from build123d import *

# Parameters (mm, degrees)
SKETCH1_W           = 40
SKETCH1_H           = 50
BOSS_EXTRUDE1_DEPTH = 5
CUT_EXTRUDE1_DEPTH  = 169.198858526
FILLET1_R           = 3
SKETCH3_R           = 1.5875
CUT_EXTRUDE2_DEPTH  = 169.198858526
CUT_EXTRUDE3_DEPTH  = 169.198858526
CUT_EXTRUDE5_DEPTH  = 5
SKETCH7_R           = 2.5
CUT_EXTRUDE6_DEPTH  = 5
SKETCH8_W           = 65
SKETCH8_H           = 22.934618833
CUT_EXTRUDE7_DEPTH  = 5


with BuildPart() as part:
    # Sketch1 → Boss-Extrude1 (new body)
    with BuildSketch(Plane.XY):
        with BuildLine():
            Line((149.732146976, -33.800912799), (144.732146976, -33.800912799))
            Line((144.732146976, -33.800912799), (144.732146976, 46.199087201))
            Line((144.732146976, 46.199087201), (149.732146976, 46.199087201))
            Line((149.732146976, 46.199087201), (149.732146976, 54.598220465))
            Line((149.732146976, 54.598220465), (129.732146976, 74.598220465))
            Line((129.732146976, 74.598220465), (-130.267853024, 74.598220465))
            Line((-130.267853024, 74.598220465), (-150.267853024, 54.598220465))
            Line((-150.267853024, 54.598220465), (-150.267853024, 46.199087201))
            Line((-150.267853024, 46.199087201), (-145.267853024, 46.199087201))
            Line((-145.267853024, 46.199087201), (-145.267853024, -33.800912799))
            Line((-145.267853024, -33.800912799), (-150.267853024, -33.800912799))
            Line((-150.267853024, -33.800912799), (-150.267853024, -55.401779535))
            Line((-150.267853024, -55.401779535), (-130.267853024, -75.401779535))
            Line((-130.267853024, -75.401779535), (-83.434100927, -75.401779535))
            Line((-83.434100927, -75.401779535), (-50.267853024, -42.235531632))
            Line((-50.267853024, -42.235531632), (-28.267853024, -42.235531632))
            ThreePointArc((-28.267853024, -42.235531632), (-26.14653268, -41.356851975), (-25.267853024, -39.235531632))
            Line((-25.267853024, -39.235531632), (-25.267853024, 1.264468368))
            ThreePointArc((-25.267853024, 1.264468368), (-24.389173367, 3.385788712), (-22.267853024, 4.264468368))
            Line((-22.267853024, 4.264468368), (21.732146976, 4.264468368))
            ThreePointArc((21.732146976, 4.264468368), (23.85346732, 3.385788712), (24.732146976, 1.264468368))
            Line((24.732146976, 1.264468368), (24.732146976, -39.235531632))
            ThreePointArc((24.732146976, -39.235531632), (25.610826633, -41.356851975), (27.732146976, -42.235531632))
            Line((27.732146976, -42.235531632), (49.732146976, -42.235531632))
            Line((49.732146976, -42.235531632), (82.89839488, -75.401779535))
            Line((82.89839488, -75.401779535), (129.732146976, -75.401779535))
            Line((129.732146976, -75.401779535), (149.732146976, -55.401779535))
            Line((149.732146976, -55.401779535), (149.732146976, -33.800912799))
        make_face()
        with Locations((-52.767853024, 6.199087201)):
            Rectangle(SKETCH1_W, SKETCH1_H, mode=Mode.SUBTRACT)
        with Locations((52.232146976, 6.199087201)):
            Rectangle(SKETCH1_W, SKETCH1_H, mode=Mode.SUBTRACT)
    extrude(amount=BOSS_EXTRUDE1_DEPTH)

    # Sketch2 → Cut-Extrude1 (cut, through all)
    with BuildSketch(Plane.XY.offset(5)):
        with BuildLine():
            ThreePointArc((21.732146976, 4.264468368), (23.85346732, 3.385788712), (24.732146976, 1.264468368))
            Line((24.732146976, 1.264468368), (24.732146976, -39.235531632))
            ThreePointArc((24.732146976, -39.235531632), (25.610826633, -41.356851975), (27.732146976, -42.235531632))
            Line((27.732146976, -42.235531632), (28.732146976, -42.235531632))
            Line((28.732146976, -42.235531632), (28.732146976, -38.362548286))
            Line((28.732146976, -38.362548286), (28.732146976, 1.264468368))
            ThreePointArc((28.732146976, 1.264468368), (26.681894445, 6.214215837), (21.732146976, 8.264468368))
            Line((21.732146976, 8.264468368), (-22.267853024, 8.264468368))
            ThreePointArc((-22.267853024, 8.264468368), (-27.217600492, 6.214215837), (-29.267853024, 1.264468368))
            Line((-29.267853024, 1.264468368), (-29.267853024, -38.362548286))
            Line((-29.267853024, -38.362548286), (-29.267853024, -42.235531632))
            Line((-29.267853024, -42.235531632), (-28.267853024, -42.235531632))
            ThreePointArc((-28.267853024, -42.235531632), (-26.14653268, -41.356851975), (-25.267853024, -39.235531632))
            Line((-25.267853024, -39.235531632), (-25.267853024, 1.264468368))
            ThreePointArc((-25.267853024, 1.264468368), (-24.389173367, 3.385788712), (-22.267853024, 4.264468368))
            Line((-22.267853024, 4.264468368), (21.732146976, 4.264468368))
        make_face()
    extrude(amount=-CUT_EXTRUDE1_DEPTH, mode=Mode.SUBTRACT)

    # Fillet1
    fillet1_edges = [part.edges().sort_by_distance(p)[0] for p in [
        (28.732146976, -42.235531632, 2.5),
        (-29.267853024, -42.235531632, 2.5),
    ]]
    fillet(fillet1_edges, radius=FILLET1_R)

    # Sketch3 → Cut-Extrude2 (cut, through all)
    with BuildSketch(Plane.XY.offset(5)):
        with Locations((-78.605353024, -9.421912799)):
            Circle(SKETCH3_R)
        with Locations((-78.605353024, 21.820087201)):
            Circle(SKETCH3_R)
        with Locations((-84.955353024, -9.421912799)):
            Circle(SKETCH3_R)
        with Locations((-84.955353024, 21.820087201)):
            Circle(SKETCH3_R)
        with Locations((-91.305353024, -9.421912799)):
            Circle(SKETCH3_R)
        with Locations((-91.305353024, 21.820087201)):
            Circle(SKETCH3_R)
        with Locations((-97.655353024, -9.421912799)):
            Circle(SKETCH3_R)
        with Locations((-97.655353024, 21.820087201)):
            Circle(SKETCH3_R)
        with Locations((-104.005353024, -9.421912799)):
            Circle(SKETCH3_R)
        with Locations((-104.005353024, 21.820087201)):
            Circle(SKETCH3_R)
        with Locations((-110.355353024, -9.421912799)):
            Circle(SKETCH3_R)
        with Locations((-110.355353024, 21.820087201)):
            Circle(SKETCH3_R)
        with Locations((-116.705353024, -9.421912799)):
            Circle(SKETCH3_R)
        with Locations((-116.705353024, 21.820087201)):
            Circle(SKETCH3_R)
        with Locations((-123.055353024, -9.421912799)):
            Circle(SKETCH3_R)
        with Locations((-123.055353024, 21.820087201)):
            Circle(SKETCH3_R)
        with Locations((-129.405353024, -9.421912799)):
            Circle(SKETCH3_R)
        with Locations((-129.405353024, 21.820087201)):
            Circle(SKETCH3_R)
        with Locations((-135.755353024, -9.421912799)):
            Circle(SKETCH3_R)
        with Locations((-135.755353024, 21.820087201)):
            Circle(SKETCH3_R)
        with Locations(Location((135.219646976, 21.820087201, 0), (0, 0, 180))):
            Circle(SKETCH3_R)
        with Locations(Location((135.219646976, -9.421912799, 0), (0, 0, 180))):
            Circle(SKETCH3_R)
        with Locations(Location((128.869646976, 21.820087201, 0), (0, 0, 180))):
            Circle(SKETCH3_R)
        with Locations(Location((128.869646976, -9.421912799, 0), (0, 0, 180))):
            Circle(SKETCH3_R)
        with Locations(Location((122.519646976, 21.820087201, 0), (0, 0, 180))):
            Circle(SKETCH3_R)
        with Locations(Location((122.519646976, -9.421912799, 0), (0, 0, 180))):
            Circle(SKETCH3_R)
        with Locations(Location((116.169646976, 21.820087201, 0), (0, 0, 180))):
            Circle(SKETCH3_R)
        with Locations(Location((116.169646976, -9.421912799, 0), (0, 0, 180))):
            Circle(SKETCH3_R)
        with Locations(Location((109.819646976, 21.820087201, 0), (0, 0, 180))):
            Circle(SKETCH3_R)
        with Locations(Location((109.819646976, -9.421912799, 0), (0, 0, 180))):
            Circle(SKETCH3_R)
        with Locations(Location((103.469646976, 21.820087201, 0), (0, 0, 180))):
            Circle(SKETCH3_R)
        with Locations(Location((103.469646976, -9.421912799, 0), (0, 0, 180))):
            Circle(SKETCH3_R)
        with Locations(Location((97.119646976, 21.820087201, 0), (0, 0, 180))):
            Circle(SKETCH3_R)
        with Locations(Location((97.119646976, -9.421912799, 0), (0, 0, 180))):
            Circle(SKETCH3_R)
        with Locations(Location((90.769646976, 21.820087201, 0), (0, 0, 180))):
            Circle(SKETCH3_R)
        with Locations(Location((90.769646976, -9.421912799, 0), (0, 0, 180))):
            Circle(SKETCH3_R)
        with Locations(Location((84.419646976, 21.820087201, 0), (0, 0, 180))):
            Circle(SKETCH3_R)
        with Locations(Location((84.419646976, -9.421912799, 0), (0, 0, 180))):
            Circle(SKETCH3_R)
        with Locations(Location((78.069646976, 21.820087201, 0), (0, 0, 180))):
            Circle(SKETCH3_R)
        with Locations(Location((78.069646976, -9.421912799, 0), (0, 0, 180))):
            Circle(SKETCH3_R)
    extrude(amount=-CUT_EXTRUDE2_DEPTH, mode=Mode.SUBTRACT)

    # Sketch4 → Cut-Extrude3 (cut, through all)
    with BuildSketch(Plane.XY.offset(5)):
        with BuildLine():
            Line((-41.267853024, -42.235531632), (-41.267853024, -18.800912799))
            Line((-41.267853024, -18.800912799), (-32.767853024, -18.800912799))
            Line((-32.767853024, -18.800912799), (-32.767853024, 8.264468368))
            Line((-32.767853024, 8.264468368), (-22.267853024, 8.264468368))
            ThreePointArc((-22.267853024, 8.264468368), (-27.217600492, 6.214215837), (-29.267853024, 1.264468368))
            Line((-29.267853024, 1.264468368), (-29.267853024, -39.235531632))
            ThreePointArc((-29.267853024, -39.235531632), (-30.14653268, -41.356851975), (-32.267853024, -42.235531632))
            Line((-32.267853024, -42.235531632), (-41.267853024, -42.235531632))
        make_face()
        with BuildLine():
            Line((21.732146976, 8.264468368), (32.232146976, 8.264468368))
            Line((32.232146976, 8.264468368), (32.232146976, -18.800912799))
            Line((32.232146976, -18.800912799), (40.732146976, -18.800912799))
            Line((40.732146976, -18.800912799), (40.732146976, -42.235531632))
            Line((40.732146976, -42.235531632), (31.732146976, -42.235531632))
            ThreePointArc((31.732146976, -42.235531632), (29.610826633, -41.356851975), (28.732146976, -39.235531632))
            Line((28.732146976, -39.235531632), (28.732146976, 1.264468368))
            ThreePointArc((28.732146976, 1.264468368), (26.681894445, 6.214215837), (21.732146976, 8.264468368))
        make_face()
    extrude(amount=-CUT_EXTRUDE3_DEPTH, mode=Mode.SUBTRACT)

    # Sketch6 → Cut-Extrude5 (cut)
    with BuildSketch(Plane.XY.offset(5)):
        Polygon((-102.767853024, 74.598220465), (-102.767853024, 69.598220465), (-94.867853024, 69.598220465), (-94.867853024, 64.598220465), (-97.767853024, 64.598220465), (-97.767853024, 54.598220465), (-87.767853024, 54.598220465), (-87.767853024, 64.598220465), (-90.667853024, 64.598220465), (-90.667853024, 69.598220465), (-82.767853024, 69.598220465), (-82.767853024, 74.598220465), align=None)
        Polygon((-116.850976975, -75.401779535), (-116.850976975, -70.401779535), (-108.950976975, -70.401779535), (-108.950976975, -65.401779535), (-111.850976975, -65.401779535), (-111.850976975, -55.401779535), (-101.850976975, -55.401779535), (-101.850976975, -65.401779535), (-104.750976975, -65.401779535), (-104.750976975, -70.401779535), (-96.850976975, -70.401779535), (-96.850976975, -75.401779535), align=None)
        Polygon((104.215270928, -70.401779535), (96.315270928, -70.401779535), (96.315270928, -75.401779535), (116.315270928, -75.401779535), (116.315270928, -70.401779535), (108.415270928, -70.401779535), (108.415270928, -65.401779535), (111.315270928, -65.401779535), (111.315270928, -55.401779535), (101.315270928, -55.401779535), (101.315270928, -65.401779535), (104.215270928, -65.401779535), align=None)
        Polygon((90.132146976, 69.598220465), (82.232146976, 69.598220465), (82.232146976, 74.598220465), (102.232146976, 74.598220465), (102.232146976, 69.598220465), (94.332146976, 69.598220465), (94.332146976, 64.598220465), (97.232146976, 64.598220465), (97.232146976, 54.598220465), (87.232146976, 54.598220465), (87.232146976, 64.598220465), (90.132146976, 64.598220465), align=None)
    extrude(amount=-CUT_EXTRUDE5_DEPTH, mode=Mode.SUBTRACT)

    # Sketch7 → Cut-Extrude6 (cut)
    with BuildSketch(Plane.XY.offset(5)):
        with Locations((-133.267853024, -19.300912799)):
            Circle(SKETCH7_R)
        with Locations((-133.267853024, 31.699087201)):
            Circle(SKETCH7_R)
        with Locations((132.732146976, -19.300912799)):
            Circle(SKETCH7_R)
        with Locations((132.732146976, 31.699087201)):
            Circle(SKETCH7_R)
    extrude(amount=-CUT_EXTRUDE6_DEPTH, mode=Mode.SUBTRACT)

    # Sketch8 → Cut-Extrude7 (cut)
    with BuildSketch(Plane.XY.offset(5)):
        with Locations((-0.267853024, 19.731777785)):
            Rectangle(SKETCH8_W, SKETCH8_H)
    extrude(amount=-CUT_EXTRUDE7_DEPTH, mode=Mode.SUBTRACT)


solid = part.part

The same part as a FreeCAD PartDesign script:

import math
import FreeCAD as App
import Part
import Sketcher
from FreeCAD import Vector
Q = App.Units.Quantity


def edges_at(feature, points):
    """Names of the edges that pass closest to the given points."""
    edges = feature.Shape.Edges
    near = lambda p: min(range(len(edges)), key=lambda i: edges[i].distToShape(Part.Vertex(*p))[0])
    return sorted({f"Edge{near(p) + 1}" for p in points})


def add_polygon(sketch, points):
    """Adds a closed chain of lines whose ends are joined by coincident constraints."""
    first, n = sketch.GeometryCount, len(points)
    for a, b in zip(points, points[1:] + points[:1]):
        sketch.addGeometry(Part.LineSegment(App.Vector(*a, 0), App.Vector(*b, 0)), False)
    for i in range(n):
        sketch.addConstraint(Sketcher.Constraint("Coincident", first + i, 2, first + (i + 1) % n, 1))

doc = App.newDocument("Part")
body = doc.addObject("PartDesign::Body", "Body")

# Sketch on XY plane
sketch1 = doc.addObject("Sketcher::SketchObject", "Sketch")
body.addObject(sketch1)
sketch1.AttachmentSupport = (doc.XY_Plane, [""])
sketch1.MapMode = "FlatFace"
sketch1.addGeometry(Part.LineSegment(Vector(149.7, -33.8, 0), Vector(144.7, -33.8, 0)), False)  # 0
sketch1.addGeometry(Part.LineSegment(Vector(144.7, -33.8, 0), Vector(144.7, 46.2, 0)), False)  # 1
sketch1.addGeometry(Part.LineSegment(Vector(144.7, 46.2, 0), Vector(149.7, 46.2, 0)), False)  # 2
sketch1.addGeometry(Part.LineSegment(Vector(149.7, 46.2, 0), Vector(149.7, 54.6, 0)), False)  # 3
sketch1.addGeometry(Part.LineSegment(Vector(149.7, 54.6, 0), Vector(129.7, 74.6, 0)), False)  # 4
sketch1.addGeometry(Part.LineSegment(Vector(129.7, 74.6, 0), Vector(-130.3, 74.6, 0)), False)  # 5
sketch1.addGeometry(Part.LineSegment(Vector(-130.3, 74.6, 0), Vector(-150.3, 54.6, 0)), False)  # 6
sketch1.addGeometry(Part.LineSegment(Vector(-150.3, 54.6, 0), Vector(-150.3, 46.2, 0)), False)  # 7
sketch1.addGeometry(Part.LineSegment(Vector(-150.3, 46.2, 0), Vector(-145.3, 46.2, 0)), False)  # 8
sketch1.addGeometry(Part.LineSegment(Vector(-145.3, 46.2, 0), Vector(-145.3, -33.8, 0)), False)  # 9
sketch1.addGeometry(Part.LineSegment(Vector(-145.3, -33.8, 0), Vector(-150.3, -33.8, 0)), False)  # 10
sketch1.addGeometry(Part.LineSegment(Vector(-150.3, -33.8, 0), Vector(-150.3, -55.4, 0)), False)  # 11
sketch1.addGeometry(Part.LineSegment(Vector(-150.3, -55.4, 0), Vector(-130.3, -75.4, 0)), False)  # 12
sketch1.addGeometry(Part.LineSegment(Vector(-130.3, -75.4, 0), Vector(-83.4, -75.4, 0)), False)  # 13
sketch1.addGeometry(Part.LineSegment(Vector(-83.4, -75.4, 0), Vector(-50.3, -42.2, 0)), False)  # 14
sketch1.addGeometry(Part.LineSegment(Vector(-50.3, -42.2, 0), Vector(-28.3, -42.2, 0)), False)  # 15
sketch1.addGeometry(Part.ArcOfCircle(Part.Circle(Vector(-28.3, -39.2, 0), Vector(0, 0, 1), 3), math.radians(-90), math.radians(0)), False)  # 16
sketch1.addGeometry(Part.LineSegment(Vector(-25.3, -39.2, 0), Vector(-25.3, 1.3, 0)), False)  # 17
sketch1.addGeometry(Part.ArcOfCircle(Part.Circle(Vector(-22.3, 1.3, 0), Vector(0, 0, 1), 3), math.radians(90), math.radians(180)), False)  # 18
sketch1.addGeometry(Part.LineSegment(Vector(-22.3, 4.3, 0), Vector(21.7, 4.3, 0)), False)  # 19
sketch1.addGeometry(Part.ArcOfCircle(Part.Circle(Vector(21.7, 1.3, 0), Vector(0, 0, 1), 3), math.radians(0), math.radians(90)), False)  # 20
sketch1.addGeometry(Part.LineSegment(Vector(24.7, 1.3, 0), Vector(24.7, -39.2, 0)), False)  # 21
sketch1.addGeometry(Part.ArcOfCircle(Part.Circle(Vector(27.7, -39.2, 0), Vector(0, 0, 1), 3), math.radians(-180), math.radians(-90)), False)  # 22
sketch1.addGeometry(Part.LineSegment(Vector(27.7, -42.2, 0), Vector(49.7, -42.2, 0)), False)  # 23
sketch1.addGeometry(Part.LineSegment(Vector(49.7, -42.2, 0), Vector(82.9, -75.4, 0)), False)  # 24
sketch1.addGeometry(Part.LineSegment(Vector(82.9, -75.4, 0), Vector(129.7, -75.4, 0)), False)  # 25
sketch1.addGeometry(Part.LineSegment(Vector(129.7, -75.4, 0), Vector(149.7, -55.4, 0)), False)  # 26
sketch1.addGeometry(Part.LineSegment(Vector(149.7, -55.4, 0), Vector(149.7, -33.8, 0)), False)  # 27
add_polygon(sketch1, [(-32.8, -18.8), (-72.8, -18.8), (-72.8, 31.2), (-32.8, 31.2)])  # lines 28-31
add_polygon(sketch1, [(72.2, -18.8), (32.2, -18.8), (32.2, 31.2), (72.2, 31.2)])  # lines 32-35
sketch1.addConstraint(Sketcher.Constraint("Coincident", 0, 2, 1, 1))
sketch1.addConstraint(Sketcher.Constraint("Coincident", 1, 2, 2, 1))
sketch1.addConstraint(Sketcher.Constraint("Coincident", 2, 2, 3, 1))
sketch1.addConstraint(Sketcher.Constraint("Coincident", 3, 2, 4, 1))
sketch1.addConstraint(Sketcher.Constraint("Coincident", 4, 2, 5, 1))
sketch1.addConstraint(Sketcher.Constraint("Coincident", 5, 2, 6, 1))
sketch1.addConstraint(Sketcher.Constraint("Coincident", 6, 2, 7, 1))
sketch1.addConstraint(Sketcher.Constraint("Coincident", 7, 2, 8, 1))
sketch1.addConstraint(Sketcher.Constraint("Coincident", 8, 2, 9, 1))
sketch1.addConstraint(Sketcher.Constraint("Coincident", 9, 2, 10, 1))
sketch1.addConstraint(Sketcher.Constraint("Coincident", 10, 2, 11, 1))
sketch1.addConstraint(Sketcher.Constraint("Coincident", 11, 2, 12, 1))
sketch1.addConstraint(Sketcher.Constraint("Coincident", 12, 2, 13, 1))
sketch1.addConstraint(Sketcher.Constraint("Coincident", 13, 2, 14, 1))
sketch1.addConstraint(Sketcher.Constraint("Coincident", 14, 2, 15, 1))
sketch1.addConstraint(Sketcher.Constraint("Tangent", 15, 2, 16, 1))
sketch1.addConstraint(Sketcher.Constraint("Tangent", 16, 2, 17, 1))
sketch1.addConstraint(Sketcher.Constraint("Tangent", 17, 2, 18, 2))
sketch1.addConstraint(Sketcher.Constraint("Tangent", 18, 1, 19, 1))
sketch1.addConstraint(Sketcher.Constraint("Tangent", 19, 2, 20, 2))
sketch1.addConstraint(Sketcher.Constraint("Tangent", 20, 1, 21, 1))
sketch1.addConstraint(Sketcher.Constraint("Tangent", 21, 2, 22, 1))
sketch1.addConstraint(Sketcher.Constraint("Tangent", 22, 2, 23, 1))
sketch1.addConstraint(Sketcher.Constraint("Coincident", 23, 2, 24, 1))
sketch1.addConstraint(Sketcher.Constraint("Coincident", 24, 2, 25, 1))
sketch1.addConstraint(Sketcher.Constraint("Coincident", 25, 2, 26, 1))
sketch1.addConstraint(Sketcher.Constraint("Coincident", 26, 2, 27, 1))
sketch1.addConstraint(Sketcher.Constraint("Coincident", 27, 2, 0, 1))
sketch1.addConstraint(Sketcher.Constraint("Horizontal", 0))
sketch1.addConstraint(Sketcher.Constraint("Vertical", 1))
sketch1.addConstraint(Sketcher.Constraint("Horizontal", 2))
sketch1.addConstraint(Sketcher.Constraint("Vertical", 3))
sketch1.addConstraint(Sketcher.Constraint("Horizontal", 5))
sketch1.addConstraint(Sketcher.Constraint("Vertical", 7))
sketch1.addConstraint(Sketcher.Constraint("Horizontal", 8))
sketch1.addConstraint(Sketcher.Constraint("Vertical", 9))
sketch1.addConstraint(Sketcher.Constraint("Horizontal", 10))
sketch1.addConstraint(Sketcher.Constraint("Vertical", 11))
sketch1.addConstraint(Sketcher.Constraint("Horizontal", 13))
sketch1.addConstraint(Sketcher.Constraint("Horizontal", 15))
sketch1.addConstraint(Sketcher.Constraint("Vertical", 17))
sketch1.addConstraint(Sketcher.Constraint("Horizontal", 19))
sketch1.addConstraint(Sketcher.Constraint("Vertical", 21))
sketch1.addConstraint(Sketcher.Constraint("Horizontal", 23))
sketch1.addConstraint(Sketcher.Constraint("Horizontal", 25))
sketch1.addConstraint(Sketcher.Constraint("Vertical", 27))
sketch1.addConstraint(Sketcher.Constraint("Horizontal", 28))
sketch1.addConstraint(Sketcher.Constraint("Vertical", 29))
sketch1.addConstraint(Sketcher.Constraint("Horizontal", 30))
sketch1.addConstraint(Sketcher.Constraint("Vertical", 31))
sketch1.addConstraint(Sketcher.Constraint("Horizontal", 32))
sketch1.addConstraint(Sketcher.Constraint("Vertical", 33))
sketch1.addConstraint(Sketcher.Constraint("Horizontal", 34))
sketch1.addConstraint(Sketcher.Constraint("Vertical", 35))
sketch1.addConstraint(Sketcher.Constraint("Equal", 16, 18))
sketch1.addConstraint(Sketcher.Constraint("Equal", 18, 20))
sketch1.addConstraint(Sketcher.Constraint("Equal", 20, 22))
sketch1.addConstraint(Sketcher.Constraint("Perpendicular", 4, 6))
sketch1.addConstraint(Sketcher.Constraint("Perpendicular", 6, 12))
sketch1.addConstraint(Sketcher.Constraint("Perpendicular", 12, 14))
sketch1.addConstraint(Sketcher.Constraint("Perpendicular", 14, 24))
sketch1.addConstraint(Sketcher.Constraint("Perpendicular", 24, 26))
sketch1.addConstraint(Sketcher.Constraint("Horizontal", 16, 3, 22, 3))
sketch1.addConstraint(Sketcher.Constraint("Horizontal", 3, 2, 6, 2))
sketch1.addConstraint(Sketcher.Constraint("Horizontal", 2, 2, 7, 2))
sketch1.addConstraint(Sketcher.Constraint("Horizontal", 0, 2, 9, 2))
sketch1.addConstraint(Sketcher.Constraint("Horizontal", 13, 2, 24, 2))
sketch1.addConstraint(Sketcher.Constraint("Horizontal", 11, 2, 26, 2))
sketch1.addConstraint(Sketcher.Constraint("Horizontal", 31, 2, 32, 2))
sketch1.addConstraint(Sketcher.Constraint("Horizontal", 30, 2, 33, 2))
sketch1.addConstraint(Sketcher.Constraint("Vertical", 7, 2, 10, 2))
sketch1.addConstraint(Sketcher.Constraint("Vertical", 5, 2, 12, 2))
sketch1.addConstraint(Sketcher.Constraint("Vertical", 4, 2, 25, 2))
sketch1.addConstraint(Sketcher.Constraint("Vertical", 3, 2, 26, 2))
sketch1.addConstraint(Sketcher.Constraint("Equal", 2, 8))
sketch1.addConstraint(Sketcher.Constraint("Equal", 15, 23))
sketch1.addConstraint(Sketcher.Constraint("Equal", 13, 25))
sketch1.addConstraint(Sketcher.Constraint("Equal", 30, 32))
sketch1.addConstraint(Sketcher.Constraint("Radius", 16, Q("3 mm")))
sketch1.addConstraint(Sketcher.Constraint("DistanceX", 0, 2, 0, 1, Q("5 mm")))
sketch1.addConstraint(Sketcher.Constraint("DistanceX", 5, 2, 5, 1, Q("260 mm")))
sketch1.addConstraint(Sketcher.Constraint("DistanceX", 15, 1, 15, 2, Q("22 mm")))
sketch1.addConstraint(Sketcher.Constraint("DistanceX", 19, 1, 19, 2, Q("44 mm")))
sketch1.addConstraint(Sketcher.Constraint("DistanceX", 28, 2, 28, 1, Q("40 mm")))
sketch1.addConstraint(Sketcher.Constraint("DistanceY", 1, 1, 1, 2, Q("80 mm")))
sketch1.addConstraint(Sketcher.Constraint("DistanceY", 29, 1, 29, 2, Q("50 mm")))
sketch1.addConstraint(Sketcher.Constraint("DistanceY", 17, 1, 17, 2, Q("40.5 mm")))
sketch1.addConstraint(Sketcher.Constraint("DistanceX", 22, 3, 0, 2, Q("117 mm")))
sketch1.addConstraint(Sketcher.Constraint("DistanceY", 11, 2, 6, 2, Q("110 mm")))
sketch1.addConstraint(Sketcher.Constraint("DistanceX", 28, 2, 14, 2, Q("22.5 mm")))
sketch1.addConstraint(Sketcher.Constraint("DistanceX", 22, 3, 32, 2, Q("4.5 mm")))
sketch1.addConstraint(Sketcher.Constraint("DistanceX", 13, 2, -1, 1, Q("83.434101 mm")))
sketch1.addConstraint(Sketcher.Constraint("DistanceX", 13, 1, 13, 2, Q("46.833752 mm")))
sketch1.addConstraint(Sketcher.Constraint("DistanceY", 3, 1, 3, 2, Q("8.399133 mm")))
sketch1.addConstraint(Sketcher.Constraint("DistanceY", 16, 3, -1, 1, Q("39.235532 mm")))
sketch1.addConstraint(Sketcher.Constraint("DistanceY", 14, 2, 28, 2, Q("23.434619 mm")))
pad1 = doc.addObject("PartDesign::Pad", "Pad")
body.addObject(pad1)
pad1.Profile = sketch1
pad1.Length = 5

# Sketch on XY plane
sketch2 = doc.addObject("Sketcher::SketchObject", "Sketch001")
body.addObject(sketch2)
sketch2.AttachmentSupport = (doc.XY_Plane, [""])
sketch2.MapMode = "FlatFace"
sketch2.AttachmentOffset = App.Placement(Vector(0, 0, 5), App.Rotation())
sketch2.addGeometry(Part.ArcOfCircle(Part.Circle(Vector(21.7, 1.3, 0), Vector(0, 0, 1), 3), math.radians(0), math.radians(90)), False)
sketch2.addGeometry(Part.LineSegment(Vector(24.7, 1.3, 0), Vector(24.7, -39.2, 0)), False)
sketch2.addGeometry(Part.ArcOfCircle(Part.Circle(Vector(27.7, -39.2, 0), Vector(0, 0, 1), 3), math.radians(-180), math.radians(-90)), False)
sketch2.addGeometry(Part.LineSegment(Vector(27.7, -42.2, 0), Vector(28.7, -42.2, 0)), False)
sketch2.addGeometry(Part.LineSegment(Vector(28.7, -42.2, 0), Vector(28.7, 1.3, 0)), False)
sketch2.addGeometry(Part.ArcOfCircle(Part.Circle(Vector(21.7, 1.3, 0), Vector(0, 0, 1), 7), math.radians(0), math.radians(90)), False)
sketch2.addGeometry(Part.LineSegment(Vector(21.7, 8.3, 0), Vector(-22.3, 8.3, 0)), False)
sketch2.addGeometry(Part.ArcOfCircle(Part.Circle(Vector(-22.3, 1.3, 0), Vector(0, 0, 1), 7), math.radians(90), math.radians(180)), False)
sketch2.addGeometry(Part.LineSegment(Vector(-29.3, 1.3, 0), Vector(-29.3, -42.2, 0)), False)
sketch2.addGeometry(Part.LineSegment(Vector(-29.3, -42.2, 0), Vector(-28.3, -42.2, 0)), False)
sketch2.addGeometry(Part.ArcOfCircle(Part.Circle(Vector(-28.3, -39.2, 0), Vector(0, 0, 1), 3), math.radians(-90), math.radians(0)), False)
sketch2.addGeometry(Part.LineSegment(Vector(-25.3, -39.2, 0), Vector(-25.3, 1.3, 0)), False)
sketch2.addGeometry(Part.ArcOfCircle(Part.Circle(Vector(-22.3, 1.3, 0), Vector(0, 0, 1), 3), math.radians(90), math.radians(180)), False)
sketch2.addGeometry(Part.LineSegment(Vector(-22.3, 4.3, 0), Vector(21.7, 4.3, 0)), False)
sketch2.addConstraint(Sketcher.Constraint("Tangent", 0, 1, 1, 1))
sketch2.addConstraint(Sketcher.Constraint("Tangent", 1, 2, 2, 1))
sketch2.addConstraint(Sketcher.Constraint("Tangent", 2, 2, 3, 1))
sketch2.addConstraint(Sketcher.Constraint("Coincident", 3, 2, 4, 1))
sketch2.addConstraint(Sketcher.Constraint("Tangent", 4, 2, 5, 1))
sketch2.addConstraint(Sketcher.Constraint("Tangent", 5, 2, 6, 1))
sketch2.addConstraint(Sketcher.Constraint("Tangent", 6, 2, 7, 1))
sketch2.addConstraint(Sketcher.Constraint("Tangent", 7, 2, 8, 1))
sketch2.addConstraint(Sketcher.Constraint("Coincident", 8, 2, 9, 1))
sketch2.addConstraint(Sketcher.Constraint("Tangent", 9, 2, 10, 1))
sketch2.addConstraint(Sketcher.Constraint("Tangent", 10, 2, 11, 1))
sketch2.addConstraint(Sketcher.Constraint("Tangent", 11, 2, 12, 2))
sketch2.addConstraint(Sketcher.Constraint("Tangent", 12, 1, 13, 1))
sketch2.addConstraint(Sketcher.Constraint("Tangent", 13, 2, 0, 2))
sketch2.addConstraint(Sketcher.Constraint("Vertical", 1))
sketch2.addConstraint(Sketcher.Constraint("Horizontal", 3))
sketch2.addConstraint(Sketcher.Constraint("Vertical", 4))
sketch2.addConstraint(Sketcher.Constraint("Horizontal", 6))
sketch2.addConstraint(Sketcher.Constraint("Vertical", 8))
sketch2.addConstraint(Sketcher.Constraint("Horizontal", 9))
sketch2.addConstraint(Sketcher.Constraint("Vertical", 11))
sketch2.addConstraint(Sketcher.Constraint("Horizontal", 13))
sketch2.addConstraint(Sketcher.Constraint("Coincident", 5, 3, 0, 3))
sketch2.addConstraint(Sketcher.Constraint("Coincident", 12, 3, 7, 3))
sketch2.addConstraint(Sketcher.Constraint("Equal", 0, 2))
sketch2.addConstraint(Sketcher.Constraint("Equal", 5, 7))
sketch2.addConstraint(Sketcher.Constraint("Equal", 2, 10))
sketch2.addConstraint(Sketcher.Constraint("Horizontal", 2, 3, 10, 3))
sketch2.addConstraint(Sketcher.Constraint("Radius", 0, Q("3 mm")))
sketch2.addConstraint(Sketcher.Constraint("Radius", 5, Q("7 mm")))
sketch2.addConstraint(Sketcher.Constraint("DistanceX", 6, 2, 6, 1, Q("44 mm")))
sketch2.addConstraint(Sketcher.Constraint("DistanceY", 1, 2, 1, 1, Q("40.5 mm")))
sketch2.addConstraint(Sketcher.Constraint("DistanceY", -1, 1, 0, 3, Q("1.264468 mm")))
sketch2.addConstraint(Sketcher.Constraint("DistanceX", -1, 1, 0, 3, Q("21.732147 mm")))
pocket1 = doc.addObject("PartDesign::Pocket", "Pocket")
body.addObject(pocket1)
pocket1.Profile = sketch2
pocket1.Type = "ThroughAll"
doc.recompute()

fillet = doc.addObject("PartDesign::Fillet", "Fillet")
body.addObject(fillet)
fillet.Base = (pocket1, edges_at(pocket1, [(28.732, -42.236, 2.5), (-29.268, -42.236, 2.5)]))
fillet.Radius = 3

# Sketch on XY plane
sketch3 = doc.addObject("Sketcher::SketchObject", "Sketch002")
body.addObject(sketch3)
sketch3.AttachmentSupport = (doc.XY_Plane, [""])
sketch3.MapMode = "FlatFace"
sketch3.AttachmentOffset = App.Placement(Vector(0, 0, 5), App.Rotation())
sketch3.addGeometry(Part.Circle(Vector(-78.6, -9.4, 0), Vector(0, 0, 1), 1.6), False)
sketch3.addGeometry(Part.Circle(Vector(-78.6, 21.8, 0), Vector(0, 0, 1), 1.6), False)
sketch3.addGeometry(Part.Circle(Vector(-85, -9.4, 0), Vector(0, 0, 1), 1.6), False)
sketch3.addGeometry(Part.Circle(Vector(-85, 21.8, 0), Vector(0, 0, 1), 1.6), False)
sketch3.addGeometry(Part.Circle(Vector(-91.3, -9.4, 0), Vector(0, 0, 1), 1.6), False)
sketch3.addGeometry(Part.Circle(Vector(-91.3, 21.8, 0), Vector(0, 0, 1), 1.6), False)
sketch3.addGeometry(Part.Circle(Vector(-97.7, -9.4, 0), Vector(0, 0, 1), 1.6), False)
sketch3.addGeometry(Part.Circle(Vector(-97.7, 21.8, 0), Vector(0, 0, 1), 1.6), False)
sketch3.addGeometry(Part.Circle(Vector(-104, -9.4, 0), Vector(0, 0, 1), 1.6), False)
sketch3.addGeometry(Part.Circle(Vector(-104, 21.8, 0), Vector(0, 0, 1), 1.6), False)
sketch3.addGeometry(Part.Circle(Vector(-110.4, -9.4, 0), Vector(0, 0, 1), 1.6), False)
sketch3.addGeometry(Part.Circle(Vector(-110.4, 21.8, 0), Vector(0, 0, 1), 1.6), False)
sketch3.addGeometry(Part.Circle(Vector(-116.7, -9.4, 0), Vector(0, 0, 1), 1.6), False)
sketch3.addGeometry(Part.Circle(Vector(-116.7, 21.8, 0), Vector(0, 0, 1), 1.6), False)
sketch3.addGeometry(Part.Circle(Vector(-123.1, -9.4, 0), Vector(0, 0, 1), 1.6), False)
sketch3.addGeometry(Part.Circle(Vector(-123.1, 21.8, 0), Vector(0, 0, 1), 1.6), False)
sketch3.addGeometry(Part.Circle(Vector(-129.4, -9.4, 0), Vector(0, 0, 1), 1.6), False)
sketch3.addGeometry(Part.Circle(Vector(-129.4, 21.8, 0), Vector(0, 0, 1), 1.6), False)
sketch3.addGeometry(Part.Circle(Vector(-135.8, -9.4, 0), Vector(0, 0, 1), 1.6), False)
sketch3.addGeometry(Part.Circle(Vector(-135.8, 21.8, 0), Vector(0, 0, 1), 1.6), False)
sketch3.addGeometry(Part.Circle(Vector(135.2, 21.8, 0), Vector(0, 0, 1), 1.6), False)
sketch3.addGeometry(Part.Circle(Vector(135.2, -9.4, 0), Vector(0, 0, 1), 1.6), False)
sketch3.addGeometry(Part.Circle(Vector(128.9, 21.8, 0), Vector(0, 0, 1), 1.6), False)
sketch3.addGeometry(Part.Circle(Vector(128.9, -9.4, 0), Vector(0, 0, 1), 1.6), False)
sketch3.addGeometry(Part.Circle(Vector(122.5, 21.8, 0), Vector(0, 0, 1), 1.6), False)
sketch3.addGeometry(Part.Circle(Vector(122.5, -9.4, 0), Vector(0, 0, 1), 1.6), False)
sketch3.addGeometry(Part.Circle(Vector(116.2, 21.8, 0), Vector(0, 0, 1), 1.6), False)
sketch3.addGeometry(Part.Circle(Vector(116.2, -9.4, 0), Vector(0, 0, 1), 1.6), False)
sketch3.addGeometry(Part.Circle(Vector(109.8, 21.8, 0), Vector(0, 0, 1), 1.6), False)
sketch3.addGeometry(Part.Circle(Vector(109.8, -9.4, 0), Vector(0, 0, 1), 1.6), False)
sketch3.addGeometry(Part.Circle(Vector(103.5, 21.8, 0), Vector(0, 0, 1), 1.6), False)
sketch3.addGeometry(Part.Circle(Vector(103.5, -9.4, 0), Vector(0, 0, 1), 1.6), False)
sketch3.addGeometry(Part.Circle(Vector(97.1, 21.8, 0), Vector(0, 0, 1), 1.6), False)
sketch3.addGeometry(Part.Circle(Vector(97.1, -9.4, 0), Vector(0, 0, 1), 1.6), False)
sketch3.addGeometry(Part.Circle(Vector(90.8, 21.8, 0), Vector(0, 0, 1), 1.6), False)
sketch3.addGeometry(Part.Circle(Vector(90.8, -9.4, 0), Vector(0, 0, 1), 1.6), False)
sketch3.addGeometry(Part.Circle(Vector(84.4, 21.8, 0), Vector(0, 0, 1), 1.6), False)
sketch3.addGeometry(Part.Circle(Vector(84.4, -9.4, 0), Vector(0, 0, 1), 1.6), False)
sketch3.addGeometry(Part.Circle(Vector(78.1, 21.8, 0), Vector(0, 0, 1), 1.6), False)
sketch3.addGeometry(Part.Circle(Vector(78.1, -9.4, 0), Vector(0, 0, 1), 1.6), False)
sketch3.addConstraint(Sketcher.Constraint("Equal", 0, 1))
sketch3.addConstraint(Sketcher.Constraint("Equal", 1, 2))
sketch3.addConstraint(Sketcher.Constraint("Equal", 2, 3))
sketch3.addConstraint(Sketcher.Constraint("Equal", 3, 4))
sketch3.addConstraint(Sketcher.Constraint("Equal", 4, 5))
sketch3.addConstraint(Sketcher.Constraint("Equal", 5, 6))
sketch3.addConstraint(Sketcher.Constraint("Equal", 6, 7))
sketch3.addConstraint(Sketcher.Constraint("Equal", 7, 8))
sketch3.addConstraint(Sketcher.Constraint("Equal", 8, 9))
sketch3.addConstraint(Sketcher.Constraint("Equal", 9, 10))
sketch3.addConstraint(Sketcher.Constraint("Equal", 10, 11))
sketch3.addConstraint(Sketcher.Constraint("Equal", 11, 12))
sketch3.addConstraint(Sketcher.Constraint("Equal", 12, 13))
sketch3.addConstraint(Sketcher.Constraint("Equal", 13, 14))
sketch3.addConstraint(Sketcher.Constraint("Equal", 14, 15))
sketch3.addConstraint(Sketcher.Constraint("Equal", 15, 16))
sketch3.addConstraint(Sketcher.Constraint("Equal", 16, 17))
sketch3.addConstraint(Sketcher.Constraint("Equal", 17, 18))
sketch3.addConstraint(Sketcher.Constraint("Equal", 18, 19))
sketch3.addConstraint(Sketcher.Constraint("Equal", 19, 20))
sketch3.addConstraint(Sketcher.Constraint("Equal", 20, 21))
sketch3.addConstraint(Sketcher.Constraint("Equal", 21, 22))
sketch3.addConstraint(Sketcher.Constraint("Equal", 22, 23))
sketch3.addConstraint(Sketcher.Constraint("Equal", 23, 24))
sketch3.addConstraint(Sketcher.Constraint("Equal", 24, 25))
sketch3.addConstraint(Sketcher.Constraint("Equal", 25, 26))
sketch3.addConstraint(Sketcher.Constraint("Equal", 26, 27))
sketch3.addConstraint(Sketcher.Constraint("Equal", 27, 28))
sketch3.addConstraint(Sketcher.Constraint("Equal", 28, 29))
sketch3.addConstraint(Sketcher.Constraint("Equal", 29, 30))
sketch3.addConstraint(Sketcher.Constraint("Equal", 30, 31))
sketch3.addConstraint(Sketcher.Constraint("Equal", 31, 32))
sketch3.addConstraint(Sketcher.Constraint("Equal", 32, 33))
sketch3.addConstraint(Sketcher.Constraint("Equal", 33, 34))
sketch3.addConstraint(Sketcher.Constraint("Equal", 34, 35))
sketch3.addConstraint(Sketcher.Constraint("Equal", 35, 36))
sketch3.addConstraint(Sketcher.Constraint("Equal", 36, 37))
sketch3.addConstraint(Sketcher.Constraint("Equal", 37, 38))
sketch3.addConstraint(Sketcher.Constraint("Equal", 38, 39))
sketch3.addConstraint(Sketcher.Constraint("Horizontal", 0, 3, 2, 3))
sketch3.addConstraint(Sketcher.Constraint("Horizontal", 1, 3, 3, 3))
sketch3.addConstraint(Sketcher.Constraint("Horizontal", 2, 3, 4, 3))
sketch3.addConstraint(Sketcher.Constraint("Horizontal", 3, 3, 5, 3))
sketch3.addConstraint(Sketcher.Constraint("Horizontal", 4, 3, 6, 3))
sketch3.addConstraint(Sketcher.Constraint("Horizontal", 5, 3, 7, 3))
sketch3.addConstraint(Sketcher.Constraint("Horizontal", 6, 3, 8, 3))
sketch3.addConstraint(Sketcher.Constraint("Horizontal", 7, 3, 9, 3))
sketch3.addConstraint(Sketcher.Constraint("Horizontal", 8, 3, 10, 3))
sketch3.addConstraint(Sketcher.Constraint("Horizontal", 9, 3, 11, 3))
sketch3.addConstraint(Sketcher.Constraint("Horizontal", 10, 3, 12, 3))
sketch3.addConstraint(Sketcher.Constraint("Horizontal", 11, 3, 13, 3))
sketch3.addConstraint(Sketcher.Constraint("Horizontal", 12, 3, 14, 3))
sketch3.addConstraint(Sketcher.Constraint("Horizontal", 13, 3, 15, 3))
sketch3.addConstraint(Sketcher.Constraint("Horizontal", 14, 3, 16, 3))
sketch3.addConstraint(Sketcher.Constraint("Horizontal", 15, 3, 17, 3))
sketch3.addConstraint(Sketcher.Constraint("Horizontal", 16, 3, 18, 3))
sketch3.addConstraint(Sketcher.Constraint("Horizontal", 17, 3, 19, 3))
sketch3.addConstraint(Sketcher.Constraint("Horizontal", 19, 3, 20, 3))
sketch3.addConstraint(Sketcher.Constraint("Horizontal", 18, 3, 21, 3))
sketch3.addConstraint(Sketcher.Constraint("Horizontal", 20, 3, 22, 3))
sketch3.addConstraint(Sketcher.Constraint("Horizontal", 21, 3, 23, 3))
sketch3.addConstraint(Sketcher.Constraint("Horizontal", 22, 3, 24, 3))
sketch3.addConstraint(Sketcher.Constraint("Horizontal", 23, 3, 25, 3))
sketch3.addConstraint(Sketcher.Constraint("Horizontal", 24, 3, 26, 3))
sketch3.addConstraint(Sketcher.Constraint("Horizontal", 25, 3, 27, 3))
sketch3.addConstraint(Sketcher.Constraint("Horizontal", 26, 3, 28, 3))
sketch3.addConstraint(Sketcher.Constraint("Horizontal", 27, 3, 29, 3))
sketch3.addConstraint(Sketcher.Constraint("Horizontal", 28, 3, 30, 3))
sketch3.addConstraint(Sketcher.Constraint("Horizontal", 29, 3, 31, 3))
sketch3.addConstraint(Sketcher.Constraint("Horizontal", 30, 3, 32, 3))
sketch3.addConstraint(Sketcher.Constraint("Horizontal", 31, 3, 33, 3))
sketch3.addConstraint(Sketcher.Constraint("Horizontal", 32, 3, 34, 3))
sketch3.addConstraint(Sketcher.Constraint("Horizontal", 33, 3, 35, 3))
sketch3.addConstraint(Sketcher.Constraint("Horizontal", 34, 3, 36, 3))
sketch3.addConstraint(Sketcher.Constraint("Horizontal", 35, 3, 37, 3))
sketch3.addConstraint(Sketcher.Constraint("Horizontal", 36, 3, 38, 3))
sketch3.addConstraint(Sketcher.Constraint("Horizontal", 37, 3, 39, 3))
sketch3.addConstraint(Sketcher.Constraint("Vertical", 0, 3, 1, 3))
sketch3.addConstraint(Sketcher.Constraint("Vertical", 2, 3, 3, 3))
sketch3.addConstraint(Sketcher.Constraint("Vertical", 4, 3, 5, 3))
sketch3.addConstraint(Sketcher.Constraint("Vertical", 6, 3, 7, 3))
sketch3.addConstraint(Sketcher.Constraint("Vertical", 8, 3, 9, 3))
sketch3.addConstraint(Sketcher.Constraint("Vertical", 10, 3, 11, 3))
sketch3.addConstraint(Sketcher.Constraint("Vertical", 12, 3, 13, 3))
sketch3.addConstraint(Sketcher.Constraint("Vertical", 14, 3, 15, 3))
sketch3.addConstraint(Sketcher.Constraint("Vertical", 16, 3, 17, 3))
sketch3.addConstraint(Sketcher.Constraint("Vertical", 18, 3, 19, 3))
sketch3.addConstraint(Sketcher.Constraint("Vertical", 20, 3, 21, 3))
sketch3.addConstraint(Sketcher.Constraint("Vertical", 22, 3, 23, 3))
sketch3.addConstraint(Sketcher.Constraint("Vertical", 24, 3, 25, 3))
sketch3.addConstraint(Sketcher.Constraint("Vertical", 26, 3, 27, 3))
sketch3.addConstraint(Sketcher.Constraint("Vertical", 28, 3, 29, 3))
sketch3.addConstraint(Sketcher.Constraint("Vertical", 30, 3, 31, 3))
sketch3.addConstraint(Sketcher.Constraint("Vertical", 32, 3, 33, 3))
sketch3.addConstraint(Sketcher.Constraint("Vertical", 34, 3, 35, 3))
sketch3.addConstraint(Sketcher.Constraint("Vertical", 36, 3, 37, 3))
sketch3.addConstraint(Sketcher.Constraint("Vertical", 38, 3, 39, 3))
sketch3.addConstraint(Sketcher.Constraint("Diameter", 0, Q("3.175 mm")))
sketch3.addConstraint(Sketcher.Constraint("DistanceX", 4, 3, 0, 3, Q("12.7 mm")))
sketch3.addConstraint(Sketcher.Constraint("DistanceX", 6, 3, 2, 3, Q("12.7 mm")))
sketch3.addConstraint(Sketcher.Constraint("DistanceX", 8, 3, 4, 3, Q("12.7 mm")))
sketch3.addConstraint(Sketcher.Constraint("DistanceX", 10, 3, 6, 3, Q("12.7 mm")))
sketch3.addConstraint(Sketcher.Constraint("DistanceX", 12, 3, 8, 3, Q("12.7 mm")))
sketch3.addConstraint(Sketcher.Constraint("DistanceX", 14, 3, 10, 3, Q("12.7 mm")))
sketch3.addConstraint(Sketcher.Constraint("DistanceX", 16, 3, 12, 3, Q("12.7 mm")))
sketch3.addConstraint(Sketcher.Constraint("DistanceX", 18, 3, 14, 3, Q("12.7 mm")))
sketch3.addConstraint(Sketcher.Constraint("DistanceX", 24, 3, 20, 3, Q("12.7 mm")))
sketch3.addConstraint(Sketcher.Constraint("DistanceX", 26, 3, 22, 3, Q("12.7 mm")))
sketch3.addConstraint(Sketcher.Constraint("DistanceX", 28, 3, 24, 3, Q("12.7 mm")))
sketch3.addConstraint(Sketcher.Constraint("DistanceX", 30, 3, 26, 3, Q("12.7 mm")))
sketch3.addConstraint(Sketcher.Constraint("DistanceX", 32, 3, 28, 3, Q("12.7 mm")))
sketch3.addConstraint(Sketcher.Constraint("DistanceX", 34, 3, 30, 3, Q("12.7 mm")))
sketch3.addConstraint(Sketcher.Constraint("DistanceX", 36, 3, 32, 3, Q("12.7 mm")))
sketch3.addConstraint(Sketcher.Constraint("DistanceX", 38, 3, 34, 3, Q("12.7 mm")))
sketch3.addConstraint(Sketcher.Constraint("DistanceX", 2, 3, 0, 3, Q("6.35 mm")))
sketch3.addConstraint(Sketcher.Constraint("DistanceX", 22, 3, 20, 3, Q("6.35 mm")))
sketch3.addConstraint(Sketcher.Constraint("DistanceY", 0, 3, 1, 3, Q("31.242 mm")))
sketch3.addConstraint(Sketcher.Constraint("DistanceX", 1, 3, 20, 3, Q("213.825 mm")))
sketch3.addConstraint(Sketcher.Constraint("DistanceX", 0, 3, -1, 1, Q("78.605353 mm")))
sketch3.addConstraint(Sketcher.Constraint("DistanceY", 0, 3, -1, 1, Q("9.421913 mm")))
pocket2 = doc.addObject("PartDesign::Pocket", "Pocket001")
body.addObject(pocket2)
pocket2.Profile = sketch3
pocket2.Type = "ThroughAll"

# Sketch on XY plane
sketch4 = doc.addObject("Sketcher::SketchObject", "Sketch003")
body.addObject(sketch4)
sketch4.AttachmentSupport = (doc.XY_Plane, [""])
sketch4.MapMode = "FlatFace"
sketch4.AttachmentOffset = App.Placement(Vector(0, 0, 5), App.Rotation())
sketch4.addGeometry(Part.LineSegment(Vector(-41.3, -18.8, 0), Vector(-41.3, -42.2, 0)), False)
sketch4.addGeometry(Part.LineSegment(Vector(-41.3, -42.2, 0), Vector(-32.3, -42.2, 0)), False)
sketch4.addGeometry(Part.ArcOfCircle(Part.Circle(Vector(-32.3, -39.2, 0), Vector(0, 0, 1), 3), math.radians(-90), math.radians(0)), False)
sketch4.addGeometry(Part.LineSegment(Vector(-29.3, -39.2, 0), Vector(-29.3, 1.3, 0)), False)
sketch4.addGeometry(Part.ArcOfCircle(Part.Circle(Vector(-22.3, 1.3, 0), Vector(0, 0, 1), 7), math.radians(90), math.radians(180)), False)
sketch4.addGeometry(Part.LineSegment(Vector(-22.3, 8.3, 0), Vector(-32.8, 8.3, 0)), False)
sketch4.addGeometry(Part.LineSegment(Vector(-32.8, 8.3, 0), Vector(-32.8, -18.8, 0)), False)
sketch4.addGeometry(Part.LineSegment(Vector(-32.8, -18.8, 0), Vector(-41.3, -18.8, 0)), False)
sketch4.addGeometry(Part.LineSegment(Vector(32.2, 8.3, 0), Vector(21.7, 8.3, 0)), False)
sketch4.addGeometry(Part.ArcOfCircle(Part.Circle(Vector(21.7, 1.3, 0), Vector(0, 0, 1), 7), math.radians(0), math.radians(90)), False)
sketch4.addGeometry(Part.LineSegment(Vector(28.7, 1.3, 0), Vector(28.7, -39.2, 0)), False)
sketch4.addGeometry(Part.ArcOfCircle(Part.Circle(Vector(31.7, -39.2, 0), Vector(0, 0, 1), 3), math.radians(-180), math.radians(-90)), False)
sketch4.addGeometry(Part.LineSegment(Vector(31.7, -42.2, 0), Vector(40.7, -42.2, 0)), False)
sketch4.addGeometry(Part.LineSegment(Vector(40.7, -42.2, 0), Vector(40.7, -18.8, 0)), False)
sketch4.addGeometry(Part.LineSegment(Vector(40.7, -18.8, 0), Vector(32.2, -18.8, 0)), False)
sketch4.addGeometry(Part.LineSegment(Vector(32.2, -18.8, 0), Vector(32.2, 8.3, 0)), False)
sketch4.addConstraint(Sketcher.Constraint("Coincident", 0, 2, 1, 1))
sketch4.addConstraint(Sketcher.Constraint("Tangent", 1, 2, 2, 1))
sketch4.addConstraint(Sketcher.Constraint("Tangent", 2, 2, 3, 1))
sketch4.addConstraint(Sketcher.Constraint("Tangent", 3, 2, 4, 2))
sketch4.addConstraint(Sketcher.Constraint("Tangent", 4, 1, 5, 1))
sketch4.addConstraint(Sketcher.Constraint("Coincident", 5, 2, 6, 1))
sketch4.addConstraint(Sketcher.Constraint("Coincident", 6, 2, 7, 1))
sketch4.addConstraint(Sketcher.Constraint("Coincident", 7, 2, 0, 1))
sketch4.addConstraint(Sketcher.Constraint("Tangent", 8, 2, 9, 2))
sketch4.addConstraint(Sketcher.Constraint("Tangent", 9, 1, 10, 1))
sketch4.addConstraint(Sketcher.Constraint("Tangent", 10, 2, 11, 1))
sketch4.addConstraint(Sketcher.Constraint("Tangent", 11, 2, 12, 1))
sketch4.addConstraint(Sketcher.Constraint("Coincident", 12, 2, 13, 1))
sketch4.addConstraint(Sketcher.Constraint("Coincident", 13, 2, 14, 1))
sketch4.addConstraint(Sketcher.Constraint("Coincident", 14, 2, 15, 1))
sketch4.addConstraint(Sketcher.Constraint("Coincident", 15, 2, 8, 1))
sketch4.addConstraint(Sketcher.Constraint("Vertical", 0))
sketch4.addConstraint(Sketcher.Constraint("Horizontal", 1))
sketch4.addConstraint(Sketcher.Constraint("Vertical", 3))
sketch4.addConstraint(Sketcher.Constraint("Horizontal", 5))
sketch4.addConstraint(Sketcher.Constraint("Vertical", 6))
sketch4.addConstraint(Sketcher.Constraint("Horizontal", 7))
sketch4.addConstraint(Sketcher.Constraint("Horizontal", 8))
sketch4.addConstraint(Sketcher.Constraint("Vertical", 10))
sketch4.addConstraint(Sketcher.Constraint("Horizontal", 12))
sketch4.addConstraint(Sketcher.Constraint("Vertical", 13))
sketch4.addConstraint(Sketcher.Constraint("Horizontal", 14))
sketch4.addConstraint(Sketcher.Constraint("Vertical", 15))
sketch4.addConstraint(Sketcher.Constraint("Equal", 4, 9))
sketch4.addConstraint(Sketcher.Constraint("Equal", 2, 11))
sketch4.addConstraint(Sketcher.Constraint("Horizontal", 4, 3, 9, 3))
sketch4.addConstraint(Sketcher.Constraint("Horizontal", 2, 3, 11, 3))
sketch4.addConstraint(Sketcher.Constraint("Horizontal", 7, 2, 13, 2))
sketch4.addConstraint(Sketcher.Constraint("Equal", 5, 8))
sketch4.addConstraint(Sketcher.Constraint("Equal", 1, 12))
sketch4.addConstraint(Sketcher.Constraint("Radius", 2, Q("3 mm")))
sketch4.addConstraint(Sketcher.Constraint("Radius", 4, Q("7 mm")))
sketch4.addConstraint(Sketcher.Constraint("DistanceX", 1, 1, 1, 2, Q("9 mm")))
sketch4.addConstraint(Sketcher.Constraint("DistanceX", 5, 2, 5, 1, Q("10.5 mm")))
sketch4.addConstraint(Sketcher.Constraint("DistanceY", 3, 1, 3, 2, Q("40.5 mm")))
sketch4.addConstraint(Sketcher.Constraint("DistanceX", 4, 3, 9, 3, Q("44 mm")))
sketch4.addConstraint(Sketcher.Constraint("DistanceY", 0, 2, 0, 1, Q("23.434619 mm")))
sketch4.addConstraint(Sketcher.Constraint("DistanceY", 2, 3, -1, 1, Q("39.235532 mm")))
sketch4.addConstraint(Sketcher.Constraint("DistanceX", 2, 3, -1, 1, Q("32.267853 mm")))
pocket3 = doc.addObject("PartDesign::Pocket", "Pocket002")
body.addObject(pocket3)
pocket3.Profile = sketch4
pocket3.Type = "ThroughAll"

# Sketch on XY plane
sketch5 = doc.addObject("Sketcher::SketchObject", "Sketch004")
body.addObject(sketch5)
sketch5.AttachmentSupport = (doc.XY_Plane, [""])
sketch5.MapMode = "FlatFace"
sketch5.AttachmentOffset = App.Placement(Vector(0, 0, 5), App.Rotation())
add_polygon(sketch5, [(-102.8, 74.6), (-102.8, 69.6), (-94.9, 69.6), (-94.9, 64.6), (-97.8, 64.6), (-97.8, 54.6), (-87.8, 54.6), (-87.8, 64.6), (-90.7, 64.6), (-90.7, 69.6), (-82.8, 69.6), (-82.8, 74.6)])  # lines 0-11
add_polygon(sketch5, [(-116.9, -70.4), (-116.9, -75.4), (-96.9, -75.4), (-96.9, -70.4), (-104.8, -70.4), (-104.8, -65.4), (-101.9, -65.4), (-101.9, -55.4), (-111.9, -55.4), (-111.9, -65.4), (-109, -65.4), (-109, -70.4)])  # lines 12-23
add_polygon(sketch5, [(104.2, -70.4), (96.3, -70.4), (96.3, -75.4), (116.3, -75.4), (116.3, -70.4), (108.4, -70.4), (108.4, -65.4), (111.3, -65.4), (111.3, -55.4), (101.3, -55.4), (101.3, -65.4), (104.2, -65.4)])  # lines 24-35
add_polygon(sketch5, [(82.2, 69.6), (90.1, 69.6), (90.1, 64.6), (87.2, 64.6), (87.2, 54.6), (97.2, 54.6), (97.2, 64.6), (94.3, 64.6), (94.3, 69.6), (102.2, 69.6), (102.2, 74.6), (82.2, 74.6)])  # lines 36-47
sketch5.addConstraint(Sketcher.Constraint("Vertical", 0))
sketch5.addConstraint(Sketcher.Constraint("Horizontal", 1))
sketch5.addConstraint(Sketcher.Constraint("Vertical", 2))
sketch5.addConstraint(Sketcher.Constraint("Horizontal", 3))
sketch5.addConstraint(Sketcher.Constraint("Vertical", 4))
sketch5.addConstraint(Sketcher.Constraint("Horizontal", 5))
sketch5.addConstraint(Sketcher.Constraint("Vertical", 6))
sketch5.addConstraint(Sketcher.Constraint("Horizontal", 7))
sketch5.addConstraint(Sketcher.Constraint("Vertical", 8))
sketch5.addConstraint(Sketcher.Constraint("Horizontal", 9))
sketch5.addConstraint(Sketcher.Constraint("Vertical", 10))
sketch5.addConstraint(Sketcher.Constraint("Horizontal", 11))
sketch5.addConstraint(Sketcher.Constraint("Vertical", 12))
sketch5.addConstraint(Sketcher.Constraint("Horizontal", 13))
sketch5.addConstraint(Sketcher.Constraint("Vertical", 14))
sketch5.addConstraint(Sketcher.Constraint("Horizontal", 15))
sketch5.addConstraint(Sketcher.Constraint("Vertical", 16))
sketch5.addConstraint(Sketcher.Constraint("Horizontal", 17))
sketch5.addConstraint(Sketcher.Constraint("Vertical", 18))
sketch5.addConstraint(Sketcher.Constraint("Horizontal", 19))
sketch5.addConstraint(Sketcher.Constraint("Vertical", 20))
sketch5.addConstraint(Sketcher.Constraint("Horizontal", 21))
sketch5.addConstraint(Sketcher.Constraint("Vertical", 22))
sketch5.addConstraint(Sketcher.Constraint("Horizontal", 23))
sketch5.addConstraint(Sketcher.Constraint("Horizontal", 24))
sketch5.addConstraint(Sketcher.Constraint("Vertical", 25))
sketch5.addConstraint(Sketcher.Constraint("Horizontal", 26))
sketch5.addConstraint(Sketcher.Constraint("Vertical", 27))
sketch5.addConstraint(Sketcher.Constraint("Horizontal", 28))
sketch5.addConstraint(Sketcher.Constraint("Vertical", 29))
sketch5.addConstraint(Sketcher.Constraint("Horizontal", 30))
sketch5.addConstraint(Sketcher.Constraint("Vertical", 31))
sketch5.addConstraint(Sketcher.Constraint("Horizontal", 32))
sketch5.addConstraint(Sketcher.Constraint("Vertical", 33))
sketch5.addConstraint(Sketcher.Constraint("Horizontal", 34))
sketch5.addConstraint(Sketcher.Constraint("Vertical", 35))
sketch5.addConstraint(Sketcher.Constraint("Horizontal", 36))
sketch5.addConstraint(Sketcher.Constraint("Vertical", 37))
sketch5.addConstraint(Sketcher.Constraint("Horizontal", 38))
sketch5.addConstraint(Sketcher.Constraint("Vertical", 39))
sketch5.addConstraint(Sketcher.Constraint("Horizontal", 40))
sketch5.addConstraint(Sketcher.Constraint("Vertical", 41))
sketch5.addConstraint(Sketcher.Constraint("Horizontal", 42))
sketch5.addConstraint(Sketcher.Constraint("Vertical", 43))
sketch5.addConstraint(Sketcher.Constraint("Horizontal", 44))
sketch5.addConstraint(Sketcher.Constraint("Vertical", 45))
sketch5.addConstraint(Sketcher.Constraint("Horizontal", 46))
sketch5.addConstraint(Sketcher.Constraint("Vertical", 47))
sketch5.addConstraint(Sketcher.Constraint("Horizontal", 3, 2, 6, 2))
sketch5.addConstraint(Sketcher.Constraint("Horizontal", 1, 2, 8, 2))
sketch5.addConstraint(Sketcher.Constraint("Horizontal", 17, 2, 20, 2))
sketch5.addConstraint(Sketcher.Constraint("Horizontal", 15, 2, 22, 2))
sketch5.addConstraint(Sketcher.Constraint("Horizontal", 23, 2, 24, 2))
sketch5.addConstraint(Sketcher.Constraint("Horizontal", 13, 2, 25, 2))
sketch5.addConstraint(Sketcher.Constraint("Horizontal", 24, 2, 27, 2))
sketch5.addConstraint(Sketcher.Constraint("Horizontal", 21, 2, 29, 2))
sketch5.addConstraint(Sketcher.Constraint("Horizontal", 19, 2, 31, 2))
sketch5.addConstraint(Sketcher.Constraint("Horizontal", 30, 2, 33, 2))
sketch5.addConstraint(Sketcher.Constraint("Horizontal", 9, 2, 36, 2))
sketch5.addConstraint(Sketcher.Constraint("Horizontal", 7, 2, 37, 2))
sketch5.addConstraint(Sketcher.Constraint("Horizontal", 5, 2, 39, 2))
sketch5.addConstraint(Sketcher.Constraint("Horizontal", 38, 2, 41, 2))
sketch5.addConstraint(Sketcher.Constraint("Horizontal", 36, 2, 43, 2))
sketch5.addConstraint(Sketcher.Constraint("Horizontal", 11, 2, 45, 2))
sketch5.addConstraint(Sketcher.Constraint("Equal", 3, 7))
sketch5.addConstraint(Sketcher.Constraint("Equal", 1, 9))
sketch5.addConstraint(Sketcher.Constraint("Equal", 11, 13))
sketch5.addConstraint(Sketcher.Constraint("Equal", 9, 15))
sketch5.addConstraint(Sketcher.Constraint("Equal", 7, 17))
sketch5.addConstraint(Sketcher.Constraint("Equal", 5, 19))
sketch5.addConstraint(Sketcher.Constraint("Equal", 17, 21))
sketch5.addConstraint(Sketcher.Constraint("Equal", 23, 24))
sketch5.addConstraint(Sketcher.Constraint("Equal", 13, 26))
sketch5.addConstraint(Sketcher.Constraint("Equal", 24, 28))
sketch5.addConstraint(Sketcher.Constraint("Equal", 21, 30))
sketch5.addConstraint(Sketcher.Constraint("Equal", 19, 32))
sketch5.addConstraint(Sketcher.Constraint("Equal", 28, 36))
sketch5.addConstraint(Sketcher.Constraint("Equal", 34, 38))
sketch5.addConstraint(Sketcher.Constraint("Equal", 32, 40))
sketch5.addConstraint(Sketcher.Constraint("Equal", 38, 42))
sketch5.addConstraint(Sketcher.Constraint("Equal", 36, 44))
sketch5.addConstraint(Sketcher.Constraint("Equal", 0, 2))
sketch5.addConstraint(Sketcher.Constraint("Equal", 40, 4))
sketch5.addConstraint(Sketcher.Constraint("Equal", 10, 12))
sketch5.addConstraint(Sketcher.Constraint("Equal", 14, 16))
sketch5.addConstraint(Sketcher.Constraint("Equal", 6, 18))
sketch5.addConstraint(Sketcher.Constraint("DistanceX", 5, 1, 5, 2, Q("10 mm")))
sketch5.addConstraint(Sketcher.Constraint("DistanceX", 11, 2, 11, 1, Q("20 mm")))
sketch5.addConstraint(Sketcher.Constraint("DistanceY", 0, 2, 0, 1, Q("5 mm")))
sketch5.addConstraint(Sketcher.Constraint("DistanceX", 1, 1, 1, 2, Q("7.9 mm")))
sketch5.addConstraint(Sketcher.Constraint("DistanceY", 12, 2, 4, 2, Q("130 mm")))
sketch5.addConstraint(Sketcher.Constraint("DistanceY", -1, 1, 0, 2, Q("69.59822 mm")))
sketch5.addConstraint(Sketcher.Constraint("DistanceX", -1, 1, 24, 2, Q("96.315271 mm")))
sketch5.addConstraint(Sketcher.Constraint("DistanceX", 0, 2, -1, 1, Q("102.767853 mm")))
sketch5.addConstraint(Sketcher.Constraint("DistanceX", 12, 2, -1, 1, Q("116.850977 mm")))
sketch5.addConstraint(Sketcher.Constraint("DistanceX", -1, 1, 36, 2, Q("90.132147 mm")))
pocket4 = doc.addObject("PartDesign::Pocket", "Pocket003")
body.addObject(pocket4)
pocket4.Profile = sketch5
pocket4.Length = 5

# Sketch on XY plane
sketch6 = doc.addObject("Sketcher::SketchObject", "Sketch005")
body.addObject(sketch6)
sketch6.AttachmentSupport = (doc.XY_Plane, [""])
sketch6.MapMode = "FlatFace"
sketch6.AttachmentOffset = App.Placement(Vector(0, 0, 5), App.Rotation())
sketch6.addGeometry(Part.Circle(Vector(-133.3, -19.3, 0), Vector(0, 0, 1), 2.5), False)
sketch6.addGeometry(Part.Circle(Vector(-133.3, 31.7, 0), Vector(0, 0, 1), 2.5), False)
sketch6.addGeometry(Part.Circle(Vector(132.7, -19.3, 0), Vector(0, 0, 1), 2.5), False)
sketch6.addGeometry(Part.Circle(Vector(132.7, 31.7, 0), Vector(0, 0, 1), 2.5), False)
sketch6.addConstraint(Sketcher.Constraint("Equal", 0, 1))
sketch6.addConstraint(Sketcher.Constraint("Equal", 1, 2))
sketch6.addConstraint(Sketcher.Constraint("Equal", 2, 3))
sketch6.addConstraint(Sketcher.Constraint("Horizontal", 0, 3, 2, 3))
sketch6.addConstraint(Sketcher.Constraint("Horizontal", 1, 3, 3, 3))
sketch6.addConstraint(Sketcher.Constraint("Vertical", 0, 3, 1, 3))
sketch6.addConstraint(Sketcher.Constraint("Vertical", 2, 3, 3, 3))
sketch6.addConstraint(Sketcher.Constraint("Diameter", 0, Q("5 mm")))
sketch6.addConstraint(Sketcher.Constraint("DistanceY", 0, 3, 1, 3, Q("51 mm")))
sketch6.addConstraint(Sketcher.Constraint("DistanceX", 0, 3, 2, 3, Q("266 mm")))
sketch6.addConstraint(Sketcher.Constraint("DistanceX", 0, 3, -1, 1, Q("133.267853 mm")))
sketch6.addConstraint(Sketcher.Constraint("DistanceY", 0, 3, -1, 1, Q("19.300913 mm")))
pocket5 = doc.addObject("PartDesign::Pocket", "Pocket004")
body.addObject(pocket5)
pocket5.Profile = sketch6
pocket5.Length = 5

# Sketch on XY plane
sketch7 = doc.addObject("Sketcher::SketchObject", "Sketch006")
body.addObject(sketch7)
sketch7.AttachmentSupport = (doc.XY_Plane, [""])
sketch7.MapMode = "FlatFace"
sketch7.AttachmentOffset = App.Placement(Vector(0, 0, 5), App.Rotation())
add_polygon(sketch7, [(-33, 31), (-33, 8), (32, 8), (32, 31)])  # lines 0-3
sketch7.addConstraint(Sketcher.Constraint("Vertical", 0))
sketch7.addConstraint(Sketcher.Constraint("Horizontal", 1))
sketch7.addConstraint(Sketcher.Constraint("Vertical", 2))
sketch7.addConstraint(Sketcher.Constraint("Horizontal", 3))
sketch7.addConstraint(Sketcher.Constraint("DistanceX", 1, 1, 1, 2, Q("65 mm")))
sketch7.addConstraint(Sketcher.Constraint("DistanceY", 0, 2, 0, 1, Q("22.934619 mm")))
sketch7.addConstraint(Sketcher.Constraint("DistanceY", -1, 1, 0, 2, Q("8.264468 mm")))
sketch7.addConstraint(Sketcher.Constraint("DistanceX", 0, 2, -1, 1, Q("32.767853 mm")))
pocket6 = doc.addObject("PartDesign::Pocket", "Pocket005")
body.addObject(pocket6)
pocket6.Profile = sketch7
pocket6.Length = 5

doc.recompute()
